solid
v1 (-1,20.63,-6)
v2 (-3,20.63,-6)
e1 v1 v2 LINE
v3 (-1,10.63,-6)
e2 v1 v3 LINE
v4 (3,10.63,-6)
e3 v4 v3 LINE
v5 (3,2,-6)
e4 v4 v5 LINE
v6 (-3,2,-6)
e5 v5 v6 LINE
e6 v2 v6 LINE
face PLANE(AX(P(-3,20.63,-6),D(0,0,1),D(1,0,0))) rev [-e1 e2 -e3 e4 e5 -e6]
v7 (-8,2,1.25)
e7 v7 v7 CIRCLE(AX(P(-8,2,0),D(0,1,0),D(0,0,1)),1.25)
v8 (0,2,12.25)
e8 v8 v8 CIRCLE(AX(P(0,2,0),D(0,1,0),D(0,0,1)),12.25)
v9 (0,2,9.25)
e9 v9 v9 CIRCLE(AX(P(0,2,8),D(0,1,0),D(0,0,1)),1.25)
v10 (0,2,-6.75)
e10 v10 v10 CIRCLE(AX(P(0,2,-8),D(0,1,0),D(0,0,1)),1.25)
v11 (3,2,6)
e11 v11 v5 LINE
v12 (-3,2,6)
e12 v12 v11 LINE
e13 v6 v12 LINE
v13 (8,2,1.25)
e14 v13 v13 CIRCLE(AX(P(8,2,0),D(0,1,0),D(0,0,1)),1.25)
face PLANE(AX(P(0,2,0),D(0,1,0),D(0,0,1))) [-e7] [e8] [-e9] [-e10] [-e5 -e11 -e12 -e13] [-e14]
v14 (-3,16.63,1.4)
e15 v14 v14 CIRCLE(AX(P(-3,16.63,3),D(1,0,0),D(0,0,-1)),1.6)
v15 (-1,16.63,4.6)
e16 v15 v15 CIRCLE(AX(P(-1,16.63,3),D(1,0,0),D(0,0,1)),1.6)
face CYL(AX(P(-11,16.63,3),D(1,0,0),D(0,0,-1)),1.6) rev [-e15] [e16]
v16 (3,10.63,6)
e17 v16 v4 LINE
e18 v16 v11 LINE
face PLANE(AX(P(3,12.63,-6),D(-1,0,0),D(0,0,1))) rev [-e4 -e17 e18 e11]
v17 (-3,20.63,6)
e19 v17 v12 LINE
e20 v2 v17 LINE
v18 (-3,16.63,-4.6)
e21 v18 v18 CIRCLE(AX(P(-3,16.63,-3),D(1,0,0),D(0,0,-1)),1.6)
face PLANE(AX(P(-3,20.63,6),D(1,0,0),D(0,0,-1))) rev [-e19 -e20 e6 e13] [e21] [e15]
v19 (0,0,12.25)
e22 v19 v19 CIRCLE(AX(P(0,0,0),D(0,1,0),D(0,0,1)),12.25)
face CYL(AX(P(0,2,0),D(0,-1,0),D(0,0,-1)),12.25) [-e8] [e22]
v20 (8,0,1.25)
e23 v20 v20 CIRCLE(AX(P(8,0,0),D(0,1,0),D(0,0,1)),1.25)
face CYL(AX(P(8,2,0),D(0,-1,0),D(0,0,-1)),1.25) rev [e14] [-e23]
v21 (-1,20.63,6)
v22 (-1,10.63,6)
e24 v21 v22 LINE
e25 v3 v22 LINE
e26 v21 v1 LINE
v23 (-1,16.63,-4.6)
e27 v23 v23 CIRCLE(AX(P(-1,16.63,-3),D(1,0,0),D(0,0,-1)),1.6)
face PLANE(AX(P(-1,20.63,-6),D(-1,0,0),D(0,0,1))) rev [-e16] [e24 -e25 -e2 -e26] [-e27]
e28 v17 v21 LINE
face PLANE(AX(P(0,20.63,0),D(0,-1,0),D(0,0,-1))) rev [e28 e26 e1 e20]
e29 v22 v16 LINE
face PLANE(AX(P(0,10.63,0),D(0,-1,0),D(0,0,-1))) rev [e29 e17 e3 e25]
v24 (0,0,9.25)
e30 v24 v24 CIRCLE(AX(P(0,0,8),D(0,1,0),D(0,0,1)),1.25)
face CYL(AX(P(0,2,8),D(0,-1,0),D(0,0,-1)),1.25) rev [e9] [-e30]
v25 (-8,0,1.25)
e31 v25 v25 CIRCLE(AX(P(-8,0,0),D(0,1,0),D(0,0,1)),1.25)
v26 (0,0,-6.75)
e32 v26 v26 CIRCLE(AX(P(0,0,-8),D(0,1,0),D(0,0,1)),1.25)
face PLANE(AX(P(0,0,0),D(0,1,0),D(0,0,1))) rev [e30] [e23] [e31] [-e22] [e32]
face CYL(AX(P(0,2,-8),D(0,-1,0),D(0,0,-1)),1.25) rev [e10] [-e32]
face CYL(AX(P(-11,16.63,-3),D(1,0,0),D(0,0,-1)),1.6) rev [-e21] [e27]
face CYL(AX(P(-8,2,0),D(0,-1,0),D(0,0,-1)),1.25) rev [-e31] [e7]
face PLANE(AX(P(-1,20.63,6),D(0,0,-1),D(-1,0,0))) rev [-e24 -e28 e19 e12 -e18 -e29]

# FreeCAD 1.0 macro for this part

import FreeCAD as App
import Part
import Sketcher

V = App.Vector
Q = App.Units.Quantity

doc = App.newDocument("Part")
body = doc.addObject("PartDesign::Body", "Body")

sketch1 = body.newObject("Sketcher::SketchObject", "Sketch")
sketch1.AttachmentSupport = (doc.getObject("XZ_Plane"), [""])
sketch1.MapMode = "FlatFace"
sketch1.addGeometry([
    Part.Circle(V(0, 0, 0), V(0, 0, 1), 12.25),
    Part.Circle(V(0, 8, 0), V(0, 0, 1), 1.25),
    Part.Circle(V(-8, 0, 0), V(0, 0, 1), 1.25),
    Part.Circle(V(8, 0, 0), V(0, 0, 1), 1.25),
    Part.Circle(V(0, -8, 0), V(0, 0, 1), 1.25),
], False)
sketch1.addConstraint([
    Sketcher.Constraint("Coincident", 0, 3, -1, 1),
    Sketcher.Constraint("Equal", 1, 2),
    Sketcher.Constraint("Equal", 2, 3),
    Sketcher.Constraint("Equal", 3, 4),
    Sketcher.Constraint("Symmetric", 2, 3, 3, 3, -1, 1),
    Sketcher.Constraint("Symmetric", 1, 3, 4, 3, -1, 1),
    Sketcher.Constraint("PointOnObject", 1, 3, -2),
    Sketcher.Constraint("PointOnObject", 2, 3, -1),
    Sketcher.Constraint("Diameter", 0, Q("24.5 mm")),
    Sketcher.Constraint("Diameter", 1, Q("2.5 mm")),
    Sketcher.Constraint("DistanceY", -1, 1, 1, 3, Q("8 mm")),
    Sketcher.Constraint("DistanceX", 2, 3, -1, 1, Q("8 mm")),
])
pad1 = body.newObject("PartDesign::Pad", "Pad")
pad1.Profile = sketch1
pad1.Length = 2
pad1.Reversed = True

sketch2 = body.newObject("Sketcher::SketchObject", "Sketch001")
sketch2.AttachmentSupport = (doc.getObject("XZ_Plane"), [""])
sketch2.MapMode = "FlatFace"
sketch2.AttachmentOffset = App.Placement(V(0, 0, -2), App.Rotation())
sketch2.addGeometry(Part.Circle(V(0, 0, 0), V(0, 0, 1), 3), False)
sketch2.addConstraint([
    Sketcher.Constraint("Coincident", 0, 3, -1, 1),
    Sketcher.Constraint("Diameter", 0, Q("6 mm")),
])
pad2 = body.newObject("PartDesign::Pad", "Pad001")
pad2.Profile = sketch2
pad2.Length = 10.63
pad2.Reversed = True

sketch3 = body.newObject("Sketcher::SketchObject", "Sketch002")
sketch3.AttachmentSupport = (doc.getObject("XZ_Plane"), [""])
sketch3.MapMode = "FlatFace"
sketch3.AttachmentOffset = App.Placement(V(0, 0, -12.63), App.Rotation())
sketch3.addGeometry([
    Part.LineSegment(V(-3, -6, 0), V(-3, 6, 0)),
    Part.LineSegment(V(-3, 6, 0), V(-1, 6, 0)),
    Part.LineSegment(V(-1, 6, 0), V(-1, -6, 0)),
    Part.LineSegment(V(-1, -6, 0), V(-3, -6, 0)),
], False)
sketch3.addConstraint([
    Sketcher.Constraint("Coincident", 0, 2, 1, 1),
    Sketcher.Constraint("Coincident", 1, 2, 2, 1),
    Sketcher.Constraint("Coincident", 2, 2, 3, 1),
    Sketcher.Constraint("Coincident", 3, 2, 0, 1),
    Sketcher.Constraint("Vertical", 0),
    Sketcher.Constraint("Horizontal", 1),
    Sketcher.Constraint("Vertical", 2),
    Sketcher.Constraint("Horizontal", 3),
    Sketcher.Constraint("DistanceX", 1, 1, 1, 2, Q("2 mm")),
    Sketcher.Constraint("DistanceY", 0, 1, 0, 2, Q("12 mm")),
    Sketcher.Constraint("DistanceX", 0, 2, -1, 1, Q("3 mm")),
    Sketcher.Constraint("DistanceY", -1, 1, 0, 2, Q("6 mm")),
])
pad3 = body.newObject("PartDesign::Pad", "Pad002")
pad3.Profile = sketch3
pad3.Length = 8
pad3.Reversed = True

sketch4 = body.newObject("Sketcher::SketchObject", "Sketch003")
sketch4.AttachmentSupport = (doc.getObject("YZ_Plane"), [""])
sketch4.MapMode = "FlatFace"
sketch4.AttachmentOffset = App.Placement(V(0, 0, -1), App.Rotation())
sketch4.addGeometry([
    Part.Circle(V(16.63, -3, 0), V(0, 0, 1), 1.6),
    Part.Circle(V(16.63, 3, 0), V(0, 0, 1), 1.6),
], False)
sketch4.addConstraint([
    Sketcher.Constraint("Equal", 0, 1),
    Sketcher.Constraint("Symmetric", 0, 3, 1, 3, -1),
    Sketcher.Constraint("Diameter", 0, Q("3.2 mm")),
    Sketcher.Constraint("DistanceY", 0, 3, -1, 1, Q("3 mm")),
    Sketcher.Constraint("DistanceX", -1, 1, 0, 3, Q("16.63 mm")),
])
pocket1 = body.newObject("PartDesign::Pocket", "Pocket")
pocket1.Profile = sketch4
pocket1.Length = 10

sketch5 = body.newObject("Sketcher::SketchObject", "Sketch004")
sketch5.AttachmentSupport = (doc.getObject("XZ_Plane"), [""])
sketch5.MapMode = "FlatFace"
sketch5.AttachmentOffset = App.Placement(V(0, 0, -2), App.Rotation())
sketch5.addGeometry([
    Part.LineSegment(V(-3, -6, 0), V(-3, 6, 0)),
    Part.LineSegment(V(-3, 6, 0), V(3, 6, 0)),
    Part.LineSegment(V(3, 6, 0), V(3, -6, 0)),
    Part.LineSegment(V(3, -6, 0), V(-3, -6, 0)),
], False)
sketch5.addConstraint([
    Sketcher.Constraint("Coincident", 0, 2, 1, 1),
    Sketcher.Constraint("Coincident", 1, 2, 2, 1),
    Sketcher.Constraint("Coincident", 2, 2, 3, 1),
    Sketcher.Constraint("Coincident", 3, 2, 0, 1),
    Sketcher.Constraint("Vertical", 0),
    Sketcher.Constraint("Horizontal", 1),
    Sketcher.Constraint("Vertical", 2),
    Sketcher.Constraint("Horizontal", 3),
    Sketcher.Constraint("Symmetric", 0, 2, 2, 2, -1, 1),
    Sketcher.Constraint("DistanceX", 1, 1, 1, 2, Q("6 mm")),
    Sketcher.Constraint("DistanceY", 0, 1, 0, 2, Q("12 mm")),
])
pad4 = body.newObject("PartDesign::Pad", "Pad003")
pad4.Profile = sketch5
pad4.Length = 10.63
pad4.Reversed = True

sketch6 = body.newObject("Sketcher::SketchObject", "Sketch005")
sketch6.AttachmentSupport = (doc.getObject("XZ_Plane"), [""])
sketch6.MapMode = "FlatFace"
sketch6.AttachmentOffset = App.Placement(V(0, 0, -12.63), App.Rotation())
sketch6.addGeometry([
    Part.LineSegment(V(-1, -6, 0), V(-1, 6, 0)),
    Part.LineSegment(V(-1, 6, 0), V(3, 6, 0)),
    Part.LineSegment(V(3, 6, 0), V(3, -6, 0)),
    Part.LineSegment(V(3, -6, 0), V(-1, -6, 0)),
], False)
sketch6.addConstraint([
    Sketcher.Constraint("Coincident", 0, 2, 1, 1),
    Sketcher.Constraint("Coincident", 1, 2, 2, 1),
    Sketcher.Constraint("Coincident", 2, 2, 3, 1),
    Sketcher.Constraint("Coincident", 3, 2, 0, 1),
    Sketcher.Constraint("Vertical", 0),
    Sketcher.Constraint("Horizontal", 1),
    Sketcher.Constraint("Vertical", 2),
    Sketcher.Constraint("Horizontal", 3),
    Sketcher.Constraint("DistanceX", 1, 1, 1, 2, Q("4 mm")),
    Sketcher.Constraint("DistanceY", 0, 1, 0, 2, Q("12 mm")),
    Sketcher.Constraint("DistanceX", 0, 2, -1, 1, Q("1 mm")),
    Sketcher.Constraint("DistanceY", -1, 1, 0, 2, Q("6 mm")),
])
pocket2 = body.newObject("PartDesign::Pocket", "Pocket001")
pocket2.Profile = sketch6
pocket2.Length = 2
pocket2.Reversed = True

doc.recompute()
